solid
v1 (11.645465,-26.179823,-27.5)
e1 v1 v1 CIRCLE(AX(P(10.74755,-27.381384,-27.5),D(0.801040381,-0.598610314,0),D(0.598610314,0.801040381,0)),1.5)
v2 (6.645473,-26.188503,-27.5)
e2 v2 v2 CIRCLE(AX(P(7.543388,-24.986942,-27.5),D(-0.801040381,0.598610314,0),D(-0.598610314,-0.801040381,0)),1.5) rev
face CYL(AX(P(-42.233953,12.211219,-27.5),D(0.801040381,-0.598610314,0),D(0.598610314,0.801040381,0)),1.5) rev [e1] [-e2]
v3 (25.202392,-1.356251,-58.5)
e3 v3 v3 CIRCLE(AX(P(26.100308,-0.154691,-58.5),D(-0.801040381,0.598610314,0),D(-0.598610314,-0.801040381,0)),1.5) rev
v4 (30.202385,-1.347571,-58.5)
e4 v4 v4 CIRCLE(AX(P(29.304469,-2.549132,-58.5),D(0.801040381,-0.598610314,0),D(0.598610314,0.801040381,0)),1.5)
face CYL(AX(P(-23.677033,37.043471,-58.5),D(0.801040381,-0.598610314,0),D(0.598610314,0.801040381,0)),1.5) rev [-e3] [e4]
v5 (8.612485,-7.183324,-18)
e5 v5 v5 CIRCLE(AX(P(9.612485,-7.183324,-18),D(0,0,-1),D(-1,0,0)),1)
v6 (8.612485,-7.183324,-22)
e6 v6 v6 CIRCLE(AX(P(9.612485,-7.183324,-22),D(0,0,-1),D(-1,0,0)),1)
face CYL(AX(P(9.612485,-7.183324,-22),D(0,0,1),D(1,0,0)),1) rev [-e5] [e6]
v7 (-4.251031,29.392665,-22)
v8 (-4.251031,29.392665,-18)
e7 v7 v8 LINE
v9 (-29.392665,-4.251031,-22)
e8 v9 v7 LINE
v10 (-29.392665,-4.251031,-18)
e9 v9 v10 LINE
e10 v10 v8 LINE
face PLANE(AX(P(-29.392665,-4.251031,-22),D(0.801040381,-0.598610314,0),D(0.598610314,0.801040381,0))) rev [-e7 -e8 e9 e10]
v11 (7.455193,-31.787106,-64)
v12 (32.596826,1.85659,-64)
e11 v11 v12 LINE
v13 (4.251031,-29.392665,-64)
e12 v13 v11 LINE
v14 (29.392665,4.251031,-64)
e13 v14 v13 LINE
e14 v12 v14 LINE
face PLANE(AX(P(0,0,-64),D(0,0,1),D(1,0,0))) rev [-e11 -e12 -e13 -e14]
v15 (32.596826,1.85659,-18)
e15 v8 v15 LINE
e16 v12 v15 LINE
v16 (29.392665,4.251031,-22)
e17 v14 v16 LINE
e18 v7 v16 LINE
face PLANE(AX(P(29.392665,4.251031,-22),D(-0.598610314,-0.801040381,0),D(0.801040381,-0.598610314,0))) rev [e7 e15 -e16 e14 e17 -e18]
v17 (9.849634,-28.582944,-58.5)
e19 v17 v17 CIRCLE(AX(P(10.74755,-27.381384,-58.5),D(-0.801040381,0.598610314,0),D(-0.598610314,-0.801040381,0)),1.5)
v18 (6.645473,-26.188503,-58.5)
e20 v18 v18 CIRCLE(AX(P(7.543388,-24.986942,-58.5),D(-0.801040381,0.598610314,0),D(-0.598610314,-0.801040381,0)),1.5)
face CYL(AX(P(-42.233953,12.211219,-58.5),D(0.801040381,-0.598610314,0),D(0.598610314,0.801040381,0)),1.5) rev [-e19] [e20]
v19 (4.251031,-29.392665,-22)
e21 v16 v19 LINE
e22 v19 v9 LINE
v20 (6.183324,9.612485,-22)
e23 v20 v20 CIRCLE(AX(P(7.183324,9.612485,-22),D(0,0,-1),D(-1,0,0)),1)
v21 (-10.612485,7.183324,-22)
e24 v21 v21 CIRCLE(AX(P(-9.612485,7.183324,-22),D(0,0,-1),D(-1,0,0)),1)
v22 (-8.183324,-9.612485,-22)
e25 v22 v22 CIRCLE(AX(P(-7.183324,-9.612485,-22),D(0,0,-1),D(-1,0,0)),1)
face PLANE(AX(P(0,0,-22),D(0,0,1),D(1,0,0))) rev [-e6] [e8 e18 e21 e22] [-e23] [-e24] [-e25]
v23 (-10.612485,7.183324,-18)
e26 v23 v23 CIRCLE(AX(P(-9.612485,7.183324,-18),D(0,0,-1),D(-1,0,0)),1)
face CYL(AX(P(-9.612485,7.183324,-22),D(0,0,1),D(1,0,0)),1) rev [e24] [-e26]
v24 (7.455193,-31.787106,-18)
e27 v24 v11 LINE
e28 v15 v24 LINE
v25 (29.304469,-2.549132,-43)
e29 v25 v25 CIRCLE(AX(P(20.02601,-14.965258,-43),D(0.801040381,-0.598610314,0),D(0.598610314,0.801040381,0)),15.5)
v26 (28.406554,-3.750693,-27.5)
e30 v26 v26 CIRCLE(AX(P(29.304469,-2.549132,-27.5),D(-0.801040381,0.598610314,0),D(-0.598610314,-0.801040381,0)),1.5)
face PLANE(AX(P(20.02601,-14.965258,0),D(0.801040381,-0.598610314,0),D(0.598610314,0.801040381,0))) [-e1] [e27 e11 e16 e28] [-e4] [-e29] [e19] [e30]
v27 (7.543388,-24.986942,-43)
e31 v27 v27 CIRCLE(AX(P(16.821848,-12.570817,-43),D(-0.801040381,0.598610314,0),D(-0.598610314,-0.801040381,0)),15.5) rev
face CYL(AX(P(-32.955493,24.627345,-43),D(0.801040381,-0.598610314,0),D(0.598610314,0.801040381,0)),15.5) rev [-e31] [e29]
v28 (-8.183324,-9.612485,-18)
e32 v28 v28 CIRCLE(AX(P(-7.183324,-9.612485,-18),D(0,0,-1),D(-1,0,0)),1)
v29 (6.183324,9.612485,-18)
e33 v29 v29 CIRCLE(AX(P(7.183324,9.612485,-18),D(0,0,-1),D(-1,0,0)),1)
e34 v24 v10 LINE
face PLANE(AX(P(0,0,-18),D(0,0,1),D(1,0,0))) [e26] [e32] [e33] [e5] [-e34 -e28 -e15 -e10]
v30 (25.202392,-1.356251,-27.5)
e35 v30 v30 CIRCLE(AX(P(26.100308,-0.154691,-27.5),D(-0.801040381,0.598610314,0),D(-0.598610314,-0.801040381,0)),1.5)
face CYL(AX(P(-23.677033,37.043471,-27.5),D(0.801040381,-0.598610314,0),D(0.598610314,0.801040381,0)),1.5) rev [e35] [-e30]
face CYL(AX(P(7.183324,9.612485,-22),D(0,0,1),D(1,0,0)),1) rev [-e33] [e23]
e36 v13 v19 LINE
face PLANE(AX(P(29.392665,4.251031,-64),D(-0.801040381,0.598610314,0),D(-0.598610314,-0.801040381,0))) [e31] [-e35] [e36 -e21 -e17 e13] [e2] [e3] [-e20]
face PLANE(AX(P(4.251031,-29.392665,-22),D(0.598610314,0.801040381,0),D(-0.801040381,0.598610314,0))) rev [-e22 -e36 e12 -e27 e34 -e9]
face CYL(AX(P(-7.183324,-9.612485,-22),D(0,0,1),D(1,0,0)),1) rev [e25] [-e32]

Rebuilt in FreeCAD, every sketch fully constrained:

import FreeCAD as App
import Part
import Sketcher

V = App.Vector
Q = App.Units.Quantity


def add_polygon(sketch, points):
    """Adds a closed chain of lines whose ends are joined by coincident constraints."""
    first, n = sketch.GeometryCount, len(points)
    for a, b in zip(points, points[1:] + points[:1]):
        sketch.addGeometry(Part.LineSegment(App.Vector(*a, 0), App.Vector(*b, 0)), False)
    for i in range(n):
        sketch.addConstraint(Sketcher.Constraint("Coincident", first + i, 2, first + (i + 1) % n, 1))

doc = App.newDocument("Part")
body = doc.addObject("PartDesign::Body", "Body")

# Sketch on XY plane
sketch1 = body.newObject("Sketcher::SketchObject", "Sketch")
sketch1.AttachmentSupport = (doc.getObject("XY_Plane"), [""])
sketch1.MapMode = "FlatFace"
sketch1.AttachmentOffset = App.Placement(V(0, 0, -18), App.Rotation())
add_polygon(sketch1, [(4.3, -29.4), (-29.4, -4.3), (-4.3, 29.4), (29.4, 4.3)])  # lines 0-3
sketch1.addGeometry(Part.Circle(V(9.6, -7.2, 0), V(0, 0, 1), 1), False)  # 4
sketch1.addGeometry(Part.Circle(V(-7.2, -9.6, 0), V(0, 0, 1), 1), False)  # 5
sketch1.addGeometry(Part.Circle(V(7.2, 9.6, 0), V(0, 0, 1), 1), False)  # 6
sketch1.addGeometry(Part.Circle(V(-9.6, 7.2, 0), V(0, 0, 1), 1), False)  # 7
sketch1.addConstraint([
    Sketcher.Constraint("Equal", 4, 5),
    Sketcher.Constraint("Equal", 5, 6),
    Sketcher.Constraint("Equal", 6, 7),
    Sketcher.Constraint("Symmetric", 5, 3, 6, 3, -1, 1),
    Sketcher.Constraint("Symmetric", 4, 3, 7, 3, -1, 1),
    Sketcher.Constraint("Symmetric", 0, 2, 2, 2, -1, 1),
    Sketcher.Constraint("Symmetric", 1, 2, 3, 2, -1, 1),
    Sketcher.Constraint("Perpendicular", 0, 1),
    Sketcher.Constraint("Equal", 0, 1),
    Sketcher.Constraint("Diameter", 4, Q("2 mm")),
    Sketcher.Constraint("Distance", 0, Q("42 mm")),
    Sketcher.Constraint("DistanceY", 0, 2, -1, 1, Q("4.251031 mm")),
    Sketcher.Constraint("DistanceX", 5, 3, 4, 3, Q("16.795808 mm")),
    Sketcher.Constraint("DistanceY", 5, 3, 4, 3, Q("2.429161 mm")),
    Sketcher.Constraint("DistanceX", 6, 3, 4, 3, Q("2.429161 mm")),
    Sketcher.Constraint("DistanceY", 4, 3, 6, 3, Q("16.795808 mm")),
])
pad1 = body.newObject("PartDesign::Pad", "Pad")
pad1.Profile = sketch1
pad1.Length = 4
pad1.Reversed = True

# Sketch on an angled plane
sketch2 = body.newObject("Sketcher::SketchObject", "Sketch001")
sketch2.Placement = App.Placement(V(16.821848, -12.570817, 0), App.Rotation(V(0.598610314, 0.801040381, 0), V(0, 0, 1), V(0.801040381, -0.598610314, 0), "ZXY"))
add_polygon(sketch2, [(-21, -18), (-21, -22), (21, -22), (21, -18)])  # lines 0-3
sketch2.addConstraint([
    Sketcher.Constraint("Vertical", 0),
    Sketcher.Constraint("Horizontal", 1),
    Sketcher.Constraint("Vertical", 2),
    Sketcher.Constraint("Horizontal", 3),
    Sketcher.Constraint("DistanceX", 1, 1, 1, 2, Q("42 mm")),
    Sketcher.Constraint("DistanceY", 0, 2, 0, 1, Q("4 mm")),
    Sketcher.Constraint("DistanceX", 0, 2, -1, 1, Q("21 mm")),
    Sketcher.Constraint("DistanceY", 0, 2, -1, 1, Q("22 mm")),
])
pad2 = body.newObject("PartDesign::Pad", "Pad001")
pad2.Profile = sketch2
pad2.Length = 4

# Sketch on XY plane
sketch3 = body.newObject("Sketcher::SketchObject", "Sketch002")
sketch3.AttachmentSupport = (doc.getObject("XY_Plane"), [""])
sketch3.MapMode = "FlatFace"
sketch3.AttachmentOffset = App.Placement(V(0, 0, -22), App.Rotation())
add_polygon(sketch3, [(32.6, 1.9), (7.5, -31.8), (4.3, -29.4), (29.4, 4.3)])  # lines 0-3
sketch3.addConstraint([
    Sketcher.Constraint("Perpendicular", 0, 1),
    Sketcher.Constraint("Perpendicular", 1, 2),
    Sketcher.Constraint("Perpendicular", 2, 3),
    Sketcher.Constraint("Distance", 0, Q("42 mm")),
    Sketcher.Constraint("Distance", 1, Q("4 mm")),
    Sketcher.Constraint("DistanceX", -1, 1, 1, 2, Q("4.251031 mm")),
    Sketcher.Constraint("DistanceY", -1, 1, 2, 2, Q("4.251031 mm")),
    Sketcher.Constraint("DistanceY", -1, 1, 3, 2, Q("1.85659 mm")),
])
pad3 = body.newObject("PartDesign::Pad", "Pad002")
pad3.Profile = sketch3
pad3.Length = 42
pad3.Reversed = True

# Sketch on an angled plane
sketch4 = body.newObject("Sketcher::SketchObject", "Sketch003")
sketch4.Placement = App.Placement(V(20.02601, -14.965258, 0), App.Rotation(V(-0.598610314, -0.801040381, 0), V(0, 0, -1), V(0.801040381, -0.598610314, 0), "ZXY"))
sketch4.addGeometry(Part.Circle(V(0, 43, 0), V(0, 0, 1), 16), False)
sketch4.addConstraint([
    Sketcher.Constraint("PointOnObject", 0, 3, -2),
    Sketcher.Constraint("Diameter", 0, Q("31 mm")),
    Sketcher.Constraint("DistanceY", -1, 1, 0, 3, Q("43 mm")),
])
pocket1 = body.newObject("PartDesign::Pocket", "Pocket")
pocket1.Profile = sketch4
pocket1.Type = "UpToFirst"

# Sketch on an angled plane
sketch5 = body.newObject("Sketcher::SketchObject", "Sketch004")
sketch5.Placement = App.Placement(V(20.02601, -14.965258, 0), App.Rotation(V(-0.598610314, -0.801040381, 0), V(0, 0, -1), V(0.801040381, -0.598610314, 0), "ZXY"))
sketch5.addGeometry(Part.Circle(V(-15.5, 58.5, 0), V(0, 0, 1), 1.5), False)
sketch5.addConstraint([
    Sketcher.Constraint("Diameter", 0, Q("3 mm")),
    Sketcher.Constraint("DistanceX", 0, 3, -1, 1, Q("15.5 mm")),
    Sketcher.Constraint("DistanceY", -1, 1, 0, 3, Q("58.5 mm")),
])
pocket2 = body.newObject("PartDesign::Pocket", "Pocket001")
pocket2.Profile = sketch5
pocket2.Type = "UpToFirst"

# Sketch on an angled plane
sketch6 = body.newObject("Sketcher::SketchObject", "Sketch005")
sketch6.Placement = App.Placement(V(20.02601, -14.965258, 0), App.Rotation(V(-0.598610314, -0.801040381, 0), V(0, 0, -1), V(0.801040381, -0.598610314, 0), "ZXY"))
sketch6.addGeometry(Part.Circle(V(-15.5, 27.5, 0), V(0, 0, 1), 1.5), False)
sketch6.addConstraint([
    Sketcher.Constraint("Diameter", 0, Q("3 mm")),
    Sketcher.Constraint("DistanceX", 0, 3, -1, 1, Q("15.5 mm")),
    Sketcher.Constraint("DistanceY", -1, 1, 0, 3, Q("27.5 mm")),
])
pocket3 = body.newObject("PartDesign::Pocket", "Pocket002")
pocket3.Profile = sketch6
pocket3.Type = "UpToFirst"

# Sketch on an angled plane
sketch7 = body.newObject("Sketcher::SketchObject", "Sketch006")
sketch7.Placement = App.Placement(V(20.02601, -14.965258, 0), App.Rotation(V(-0.598610314, -0.801040381, 0), V(0, 0, -1), V(0.801040381, -0.598610314, 0), "ZXY"))
sketch7.addGeometry(Part.Circle(V(15.5, 58.5, 0), V(0, 0, 1), 1.5), False)
sketch7.addConstraint([
    Sketcher.Constraint("Diameter", 0, Q("3 mm")),
    Sketcher.Constraint("DistanceX", -1, 1, 0, 3, Q("15.5 mm")),
    Sketcher.Constraint("DistanceY", -1, 1, 0, 3, Q("58.5 mm")),
])
pocket4 = body.newObject("PartDesign::Pocket", "Pocket003")
pocket4.Profile = sketch7
pocket4.Type = "UpToFirst"

# Sketch on an angled plane
sketch8 = body.newObject("Sketcher::SketchObject", "Sketch007")
sketch8.Placement = App.Placement(V(20.02601, -14.965258, 0), App.Rotation(V(-0.598610314, -0.801040381, 0), V(0, 0, -1), V(0.801040381, -0.598610314, 0), "ZXY"))
sketch8.addGeometry(Part.Circle(V(15.5, 27.5, 0), V(0, 0, 1), 1.5), False)
sketch8.addConstraint([
    Sketcher.Constraint("Diameter", 0, Q("3 mm")),
    Sketcher.Constraint("DistanceX", -1, 1, 0, 3, Q("15.5 mm")),
    Sketcher.Constraint("DistanceY", -1, 1, 0, 3, Q("27.5 mm")),
])
pocket5 = body.newObject("PartDesign::Pocket", "Pocket004")
pocket5.Profile = sketch8
pocket5.Type = "UpToFirst"

doc.recompute()
